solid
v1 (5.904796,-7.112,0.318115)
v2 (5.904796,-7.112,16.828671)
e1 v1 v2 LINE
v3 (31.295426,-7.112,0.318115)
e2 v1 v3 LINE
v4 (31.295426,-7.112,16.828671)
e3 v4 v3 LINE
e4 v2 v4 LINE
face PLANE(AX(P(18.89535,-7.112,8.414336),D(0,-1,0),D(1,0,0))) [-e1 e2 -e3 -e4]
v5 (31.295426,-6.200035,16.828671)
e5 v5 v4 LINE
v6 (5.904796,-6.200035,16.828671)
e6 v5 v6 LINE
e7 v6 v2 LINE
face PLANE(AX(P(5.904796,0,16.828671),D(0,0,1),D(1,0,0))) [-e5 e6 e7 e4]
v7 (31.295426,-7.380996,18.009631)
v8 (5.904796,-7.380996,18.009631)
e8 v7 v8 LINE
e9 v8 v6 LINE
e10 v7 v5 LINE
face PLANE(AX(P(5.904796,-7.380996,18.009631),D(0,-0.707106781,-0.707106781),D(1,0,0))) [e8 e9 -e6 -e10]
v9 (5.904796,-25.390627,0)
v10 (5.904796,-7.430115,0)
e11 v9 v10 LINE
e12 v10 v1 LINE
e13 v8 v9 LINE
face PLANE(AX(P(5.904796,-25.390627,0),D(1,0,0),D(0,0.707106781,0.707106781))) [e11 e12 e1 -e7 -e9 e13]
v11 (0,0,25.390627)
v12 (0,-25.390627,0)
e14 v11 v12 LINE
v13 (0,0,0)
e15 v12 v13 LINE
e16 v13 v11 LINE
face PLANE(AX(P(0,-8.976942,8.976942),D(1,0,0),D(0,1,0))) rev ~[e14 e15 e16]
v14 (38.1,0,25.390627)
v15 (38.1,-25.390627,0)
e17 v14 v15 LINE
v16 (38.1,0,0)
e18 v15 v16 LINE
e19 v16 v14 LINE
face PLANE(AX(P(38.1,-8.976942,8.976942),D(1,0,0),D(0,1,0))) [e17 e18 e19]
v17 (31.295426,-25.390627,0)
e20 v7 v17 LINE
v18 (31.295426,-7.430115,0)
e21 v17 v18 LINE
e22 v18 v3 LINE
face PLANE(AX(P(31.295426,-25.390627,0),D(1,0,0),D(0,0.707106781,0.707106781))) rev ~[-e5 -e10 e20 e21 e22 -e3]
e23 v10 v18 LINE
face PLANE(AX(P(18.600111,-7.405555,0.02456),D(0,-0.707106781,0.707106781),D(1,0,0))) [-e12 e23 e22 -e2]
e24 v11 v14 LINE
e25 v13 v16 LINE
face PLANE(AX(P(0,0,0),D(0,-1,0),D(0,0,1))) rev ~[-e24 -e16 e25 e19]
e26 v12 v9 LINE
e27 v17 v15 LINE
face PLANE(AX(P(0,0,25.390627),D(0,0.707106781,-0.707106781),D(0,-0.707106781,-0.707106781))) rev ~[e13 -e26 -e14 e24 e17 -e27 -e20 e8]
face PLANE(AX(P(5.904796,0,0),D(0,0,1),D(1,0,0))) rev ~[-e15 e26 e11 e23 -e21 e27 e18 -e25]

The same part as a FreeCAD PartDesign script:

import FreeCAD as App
import Part
import Sketcher

V = App.Vector
Q = App.Units.Quantity

doc = App.newDocument("Part")
body = doc.addObject("PartDesign::Body", "Body")

# Sketch on YZ plane
sketch1 = doc.addObject("Sketcher::SketchObject", "Sketch")
body.addObject(sketch1)
sketch1.AttachmentSupport = (doc.YZ_Plane, [""])
sketch1.MapMode = "FlatFace"
sketch1.addGeometry([
    Part.LineSegment(V(-25, 0, 0), V(0, 0, 0)),
    Part.LineSegment(V(0, 0, 0), V(0, 25, 0)),
    Part.LineSegment(V(0, 25, 0), V(-25, 0, 0)),
], False)
sketch1.addConstraint([
    Sketcher.Constraint("Coincident", 0, 2, 1, 1),
    Sketcher.Constraint("Coincident", 1, 2, 2, 1),
    Sketcher.Constraint("Coincident", 2, 2, 0, 1),
    Sketcher.Constraint("Horizontal", 0),
    Sketcher.Constraint("Vertical", 1),
    Sketcher.Constraint("Coincident", 0, 2, -1, 1),
    Sketcher.Constraint("Equal", 0, 1),
    Sketcher.Constraint("Distance", 2, Q("35.907769 mm")),
])
pad1 = doc.addObject("PartDesign::Pad", "Pad")
body.addObject(pad1)
pad1.Profile = sketch1
pad1.Length = Q("1.5 in")

# Sketch on an angled plane
sketch2 = doc.addObject("Sketcher::SketchObject", "Sketch001")
body.addObject(sketch2)
sketch2.Placement = App.Placement(V(0, -12.695313, 12.695313), App.Rotation(V(1, 0, 0), V(0, 0.707106781, 0.707106781), V(0, -0.707106781, 0.707106781), "ZXY"))
sketch2.addGeometry([
    Part.LineSegment(V(6, 8, 0), V(6, -18, 0)),
    Part.LineSegment(V(6, -18, 0), V(31, -18, 0)),
    Part.LineSegment(V(31, -18, 0), V(31, 8, 0)),
    Part.LineSegment(V(31, 8, 0), V(6, 8, 0)),
], False)
sketch2.addConstraint([
    Sketcher.Constraint("Coincident", 0, 2, 1, 1),
    Sketcher.Constraint("Coincident", 1, 2, 2, 1),
    Sketcher.Constraint("Coincident", 2, 2, 3, 1),
    Sketcher.Constraint("Coincident", 3, 2, 0, 1),
    Sketcher.Constraint("Vertical", 0),
    Sketcher.Constraint("Horizontal", 1),
    Sketcher.Constraint("Vertical", 2),
    Sketcher.Constraint("Horizontal", 3),
    Sketcher.Constraint("DistanceX", 1, 1, 1, 2, Q("25.39063 mm")),
    Sketcher.Constraint("DistanceY", 0, 2, 0, 1, Q("25.469465 mm")),
    Sketcher.Constraint("DistanceY", -1, 1, 2, 2, Q("7.51558 mm")),
    Sketcher.Constraint("DistanceX", -1, 1, 0, 2, Q("5.904796 mm")),
])
pocket1 = doc.addObject("PartDesign::Pocket", "Pocket")
body.addObject(pocket1)
pocket1.Profile = sketch2
pocket1.Length = Q("1 in")
pocket1.Midplane = True

# Sketch on XZ plane
sketch3 = doc.addObject("Sketcher::SketchObject", "Sketch002")
body.addObject(sketch3)
sketch3.AttachmentSupport = (doc.XZ_Plane, [""])
sketch3.MapMode = "FlatFace"
sketch3.addGeometry([
    Part.LineSegment(V(6, 17, 0), V(6, 0, 0)),
    Part.LineSegment(V(6, 0, 0), V(32, 0, 0)),
    Part.LineSegment(V(32, 0, 0), V(32, 17, 0)),
    Part.LineSegment(V(32, 17, 0), V(6, 17, 0)),
], False)
sketch3.addConstraint([
    Sketcher.Constraint("Coincident", 0, 2, 1, 1),
    Sketcher.Constraint("Coincident", 1, 2, 2, 1),
    Sketcher.Constraint("Coincident", 2, 2, 3, 1),
    Sketcher.Constraint("Coincident", 3, 2, 0, 1),
    Sketcher.Constraint("Vertical", 0),
    Sketcher.Constraint("Horizontal", 1),
    Sketcher.Constraint("Vertical", 2),
    Sketcher.Constraint("Horizontal", 3),
    Sketcher.Constraint("PointOnObject", 0, 2, -1),
    Sketcher.Constraint("DistanceY", 0, 2, 0, 1, Q("16.828671 mm")),
    Sketcher.Constraint("DistanceX", 1, 1, 1, 2, Q("25.981107 mm")),
    Sketcher.Constraint("DistanceX", -1, 1, 0, 2, Q("5.904796 mm")),
])
pad2 = doc.addObject("PartDesign::Pad", "Pad001")
body.addObject(pad2)
pad2.Profile = sketch3
pad2.Length = Q("0.28 in")

doc.recompute()
